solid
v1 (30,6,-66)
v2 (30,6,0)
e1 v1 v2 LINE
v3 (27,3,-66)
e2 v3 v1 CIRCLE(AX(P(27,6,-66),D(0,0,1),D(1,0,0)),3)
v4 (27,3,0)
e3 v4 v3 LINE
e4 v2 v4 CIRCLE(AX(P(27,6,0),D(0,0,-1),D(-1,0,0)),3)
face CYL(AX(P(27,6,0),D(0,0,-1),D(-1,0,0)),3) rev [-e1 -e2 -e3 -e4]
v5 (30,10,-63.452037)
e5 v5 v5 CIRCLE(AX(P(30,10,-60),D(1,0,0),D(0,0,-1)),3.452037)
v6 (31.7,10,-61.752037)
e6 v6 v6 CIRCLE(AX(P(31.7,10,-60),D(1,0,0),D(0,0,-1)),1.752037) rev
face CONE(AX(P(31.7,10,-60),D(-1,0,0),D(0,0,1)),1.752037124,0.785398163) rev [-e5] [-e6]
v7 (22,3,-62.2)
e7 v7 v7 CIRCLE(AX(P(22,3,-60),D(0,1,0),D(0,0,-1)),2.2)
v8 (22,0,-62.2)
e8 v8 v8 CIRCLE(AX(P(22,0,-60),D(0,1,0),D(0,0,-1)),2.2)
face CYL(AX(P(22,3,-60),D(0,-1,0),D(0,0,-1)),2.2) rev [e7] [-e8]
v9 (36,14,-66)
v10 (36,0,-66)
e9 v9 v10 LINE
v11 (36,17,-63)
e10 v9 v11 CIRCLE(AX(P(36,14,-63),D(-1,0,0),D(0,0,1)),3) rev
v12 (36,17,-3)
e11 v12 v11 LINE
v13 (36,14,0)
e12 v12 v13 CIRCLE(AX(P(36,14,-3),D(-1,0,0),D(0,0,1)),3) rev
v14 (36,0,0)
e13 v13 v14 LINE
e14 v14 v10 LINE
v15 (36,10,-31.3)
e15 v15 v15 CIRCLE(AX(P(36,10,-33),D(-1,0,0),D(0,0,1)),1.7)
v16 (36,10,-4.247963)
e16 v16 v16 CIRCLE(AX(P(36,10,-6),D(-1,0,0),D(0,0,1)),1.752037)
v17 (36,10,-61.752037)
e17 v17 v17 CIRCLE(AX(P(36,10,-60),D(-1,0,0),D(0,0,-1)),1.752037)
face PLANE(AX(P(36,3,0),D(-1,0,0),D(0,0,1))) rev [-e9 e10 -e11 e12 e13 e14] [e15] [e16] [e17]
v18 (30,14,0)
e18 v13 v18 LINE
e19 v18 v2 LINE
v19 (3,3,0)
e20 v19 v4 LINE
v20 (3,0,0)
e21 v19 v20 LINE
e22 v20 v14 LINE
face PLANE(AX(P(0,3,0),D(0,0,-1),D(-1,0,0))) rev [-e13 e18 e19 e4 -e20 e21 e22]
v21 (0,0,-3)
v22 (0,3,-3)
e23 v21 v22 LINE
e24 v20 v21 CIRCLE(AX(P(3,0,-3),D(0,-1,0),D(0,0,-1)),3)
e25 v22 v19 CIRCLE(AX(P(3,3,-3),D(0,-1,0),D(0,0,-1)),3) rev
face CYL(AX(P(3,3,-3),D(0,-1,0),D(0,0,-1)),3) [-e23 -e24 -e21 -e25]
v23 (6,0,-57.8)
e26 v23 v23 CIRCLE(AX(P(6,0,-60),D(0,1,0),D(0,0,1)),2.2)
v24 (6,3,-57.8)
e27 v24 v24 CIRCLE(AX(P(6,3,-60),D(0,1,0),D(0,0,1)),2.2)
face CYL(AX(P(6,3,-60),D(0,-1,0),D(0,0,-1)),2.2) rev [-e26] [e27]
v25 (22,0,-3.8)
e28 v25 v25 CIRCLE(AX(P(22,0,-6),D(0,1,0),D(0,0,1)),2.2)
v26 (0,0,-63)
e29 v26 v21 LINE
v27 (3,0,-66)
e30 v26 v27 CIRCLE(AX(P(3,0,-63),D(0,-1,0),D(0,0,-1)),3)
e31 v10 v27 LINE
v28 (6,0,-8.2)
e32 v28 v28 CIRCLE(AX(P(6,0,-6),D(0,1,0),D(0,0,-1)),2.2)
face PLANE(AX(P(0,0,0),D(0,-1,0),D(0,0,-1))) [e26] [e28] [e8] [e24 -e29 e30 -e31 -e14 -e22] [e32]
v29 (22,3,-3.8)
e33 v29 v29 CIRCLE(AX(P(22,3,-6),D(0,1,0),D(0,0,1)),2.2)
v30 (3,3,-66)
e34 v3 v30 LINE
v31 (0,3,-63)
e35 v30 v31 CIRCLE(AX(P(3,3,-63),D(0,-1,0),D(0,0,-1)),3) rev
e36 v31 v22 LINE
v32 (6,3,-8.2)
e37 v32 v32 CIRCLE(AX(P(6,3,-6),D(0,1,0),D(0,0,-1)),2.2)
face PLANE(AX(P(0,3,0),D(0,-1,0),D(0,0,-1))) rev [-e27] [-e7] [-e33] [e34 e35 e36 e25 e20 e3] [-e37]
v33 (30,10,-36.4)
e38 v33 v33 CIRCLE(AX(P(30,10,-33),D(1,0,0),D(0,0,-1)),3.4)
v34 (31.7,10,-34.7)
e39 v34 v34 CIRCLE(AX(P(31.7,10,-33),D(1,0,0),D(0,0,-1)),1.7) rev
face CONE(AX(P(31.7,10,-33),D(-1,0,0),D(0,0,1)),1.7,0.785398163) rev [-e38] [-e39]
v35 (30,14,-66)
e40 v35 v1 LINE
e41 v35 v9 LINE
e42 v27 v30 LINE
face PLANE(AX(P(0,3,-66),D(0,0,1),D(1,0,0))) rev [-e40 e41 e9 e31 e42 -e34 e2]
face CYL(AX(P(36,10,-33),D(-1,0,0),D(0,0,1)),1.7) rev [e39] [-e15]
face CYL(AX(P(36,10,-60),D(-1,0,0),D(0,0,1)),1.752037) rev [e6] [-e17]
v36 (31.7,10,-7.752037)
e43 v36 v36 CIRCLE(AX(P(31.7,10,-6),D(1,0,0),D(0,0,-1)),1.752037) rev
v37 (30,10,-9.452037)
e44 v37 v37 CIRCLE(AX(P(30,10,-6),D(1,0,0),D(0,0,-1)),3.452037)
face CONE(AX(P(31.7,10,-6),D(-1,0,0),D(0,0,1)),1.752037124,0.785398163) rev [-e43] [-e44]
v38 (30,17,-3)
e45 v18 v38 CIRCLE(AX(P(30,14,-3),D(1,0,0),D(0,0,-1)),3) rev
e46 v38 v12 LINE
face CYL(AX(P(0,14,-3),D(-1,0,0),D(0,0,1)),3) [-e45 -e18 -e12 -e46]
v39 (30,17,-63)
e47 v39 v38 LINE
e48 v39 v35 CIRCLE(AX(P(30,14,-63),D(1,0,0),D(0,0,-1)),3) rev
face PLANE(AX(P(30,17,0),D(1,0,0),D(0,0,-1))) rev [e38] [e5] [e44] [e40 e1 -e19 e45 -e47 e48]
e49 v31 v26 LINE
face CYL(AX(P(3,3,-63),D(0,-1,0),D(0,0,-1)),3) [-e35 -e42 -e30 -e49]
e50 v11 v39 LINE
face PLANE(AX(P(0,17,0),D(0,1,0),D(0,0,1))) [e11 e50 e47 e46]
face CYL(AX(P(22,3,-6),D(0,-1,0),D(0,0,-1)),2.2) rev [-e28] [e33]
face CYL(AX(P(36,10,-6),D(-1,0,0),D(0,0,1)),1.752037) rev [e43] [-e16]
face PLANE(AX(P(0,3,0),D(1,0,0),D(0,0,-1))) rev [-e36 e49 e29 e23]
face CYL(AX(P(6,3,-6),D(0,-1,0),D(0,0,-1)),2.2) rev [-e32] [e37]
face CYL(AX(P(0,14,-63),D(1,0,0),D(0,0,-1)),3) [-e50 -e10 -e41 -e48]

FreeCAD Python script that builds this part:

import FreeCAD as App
import Part
import Sketcher
from FreeCAD import Vector


def edges_at(feature, points):
    """Names of the edges that pass closest to the given points."""
    edges = feature.Shape.Edges
    near = lambda p: min(range(len(edges)), key=lambda i: edges[i].distToShape(Part.Vertex(*p))[0])
    return sorted({f"Edge{near(p) + 1}" for p in points})


def add_polygon(sketch, points):
    """Adds a closed chain of lines whose ends are joined by coincident constraints."""
    first, n = sketch.GeometryCount, len(points)
    for a, b in zip(points, points[1:] + points[:1]):
        sketch.addGeometry(Part.LineSegment(App.Vector(*a, 0), App.Vector(*b, 0)), False)
    for i in range(n):
        sketch.addConstraint(Sketcher.Constraint("Coincident", first + i, 2, first + (i + 1) % n, 1))

doc = App.newDocument("Part")
params = doc.addObject("Spreadsheet::Sheet", "Params")
for row, (alias, value) in enumerate([
    ("sketch1_diameter", "4.4 mm"),
    ("sketch1_width", "36 mm"),
    ("sketch1_height", "66 mm"),
    ("pad1_length", "3 mm"),
    ("sketch2_width", "6 mm"),
    ("sketch2_height", "66 mm"),
    ("pad2_length", "14 mm"),
    ("sketch3_diameter", "3.4 mm"),
    ("chamfer_size", "1.7 mm"),
    ("fillet_radius", "3 mm"),
], start=1):
    params.set(f"A{row}", alias)
    params.set(f"B{row}", "=" + value)
    params.setAlias(f"B{row}", alias)

body = doc.addObject("PartDesign::Body", "Body")

# Sketch on XZ plane
sketch1 = doc.addObject("Sketcher::SketchObject", "Sketch")
body.addObject(sketch1)
sketch1.AttachmentSupport = (doc.XZ_Plane, [""])
sketch1.MapMode = "FlatFace"
add_polygon(sketch1, [(0, -66), (0, 0), (36, 0), (36, -66)])  # lines 0-3
sketch1.addGeometry(Part.Circle(Vector(6, -6, 0), Vector(0, 0, 1), 2.2), False)  # 4
sketch1.addGeometry(Part.Circle(Vector(22, -6, 0), Vector(0, 0, 1), 2.2), False)  # 5
sketch1.addGeometry(Part.Circle(Vector(6, -60, 0), Vector(0, 0, 1), 2.2), False)  # 6
sketch1.addGeometry(Part.Circle(Vector(22, -60, 0), Vector(0, 0, 1), 2.2), False)  # 7
sketch1.addConstraint(Sketcher.Constraint("Vertical", 0))
sketch1.addConstraint(Sketcher.Constraint("Horizontal", 1))
sketch1.addConstraint(Sketcher.Constraint("Vertical", 2))
sketch1.addConstraint(Sketcher.Constraint("Horizontal", 3))
sketch1.addConstraint(Sketcher.Constraint("Coincident", 0, 2, -1, 1))
sketch1.addConstraint(Sketcher.Constraint("Equal", 4, 5))
sketch1.addConstraint(Sketcher.Constraint("Equal", 5, 6))
sketch1.addConstraint(Sketcher.Constraint("Equal", 6, 7))
sketch1.addConstraint(Sketcher.Constraint("Horizontal", 4, 3, 5, 3))
sketch1.addConstraint(Sketcher.Constraint("Horizontal", 6, 3, 7, 3))
sketch1.addConstraint(Sketcher.Constraint("Vertical", 4, 3, 6, 3))
sketch1.addConstraint(Sketcher.Constraint("Vertical", 5, 3, 7, 3))
sketch1.addConstraint(Sketcher.Constraint("Diameter", 4, 4.4))
sketch1.addConstraint(Sketcher.Constraint("DistanceX", 1, 1, 1, 2, 36.0))
sketch1.addConstraint(Sketcher.Constraint("DistanceY", 0, 1, 0, 2, 66.0))
sketch1.addConstraint(Sketcher.Constraint("DistanceX", -1, 1, 4, 3, 6.0))
sketch1.addConstraint(Sketcher.Constraint("DistanceY", 4, 3, -1, 1, 6.0))
sketch1.addConstraint(Sketcher.Constraint("DistanceX", -1, 1, 5, 3, 22.0))
sketch1.addConstraint(Sketcher.Constraint("DistanceY", 6, 3, -1, 1, 60.0))
sketch1.setExpression("Constraints[16]", "Params.sketch1_diameter")
sketch1.setExpression("Constraints[17]", "Params.sketch1_width")
sketch1.setExpression("Constraints[18]", "Params.sketch1_height")
pad1 = doc.addObject("PartDesign::Pad", "Pad")
body.addObject(pad1)
pad1.Profile = sketch1
pad1.setExpression("Length", "Params.pad1_length")
pad1.Reversed = True

# Sketch on XZ plane
sketch2 = doc.addObject("Sketcher::SketchObject", "Sketch001")
body.addObject(sketch2)
sketch2.AttachmentSupport = (doc.XZ_Plane, [""])
sketch2.MapMode = "FlatFace"
sketch2.AttachmentOffset = App.Placement(Vector(0, 0, -3), App.Rotation())
add_polygon(sketch2, [(30, -66), (30, 0), (36, 0), (36, -66)])  # lines 0-3
sketch2.addConstraint(Sketcher.Constraint("Vertical", 0))
sketch2.addConstraint(Sketcher.Constraint("Horizontal", 1))
sketch2.addConstraint(Sketcher.Constraint("Vertical", 2))
sketch2.addConstraint(Sketcher.Constraint("Horizontal", 3))
sketch2.addConstraint(Sketcher.Constraint("PointOnObject", 0, 2, -1))
sketch2.addConstraint(Sketcher.Constraint("DistanceX", 1, 1, 1, 2, 6.0))
sketch2.addConstraint(Sketcher.Constraint("DistanceY", 0, 1, 0, 2, 66.0))
sketch2.addConstraint(Sketcher.Constraint("DistanceX", -1, 1, 0, 2, 30.0))
sketch2.setExpression("Constraints[9]", "Params.sketch2_width")
sketch2.setExpression("Constraints[10]", "Params.sketch2_height")
pad2 = doc.addObject("PartDesign::Pad", "Pad001")
body.addObject(pad2)
pad2.Profile = sketch2
pad2.setExpression("Length", "Params.pad2_length")
pad2.Reversed = True

# Sketch on YZ plane
sketch3 = doc.addObject("Sketcher::SketchObject", "Sketch002")
body.addObject(sketch3)
sketch3.AttachmentSupport = (doc.YZ_Plane, [""])
sketch3.MapMode = "FlatFace"
sketch3.AttachmentOffset = App.Placement(Vector(0, 0, 30), App.Rotation())
sketch3.addGeometry(Part.Circle(Vector(10, -33, 0), Vector(0, 0, 1), 1.7), False)
sketch3.addGeometry(Part.Circle(Vector(10, -6, 0), Vector(0, 0, 1), 1.8), False)
sketch3.addGeometry(Part.Circle(Vector(10, -60, 0), Vector(0, 0, 1), 1.8), False)
sketch3.addConstraint(Sketcher.Constraint("Equal", 1, 2))
sketch3.addConstraint(Sketcher.Constraint("Vertical", 0, 3, 1, 3))
sketch3.addConstraint(Sketcher.Constraint("Vertical", 1, 3, 2, 3))
sketch3.addConstraint(Sketcher.Constraint("Diameter", 0, 3.4))
sketch3.addConstraint(Sketcher.Constraint("DistanceX", -1, 1, 0, 3, 10.0))
sketch3.addConstraint(Sketcher.Constraint("DistanceY", 0, 3, -1, 1, 33.0))
sketch3.addConstraint(Sketcher.Constraint("DistanceY", 1, 3, -1, 1, 6.0))
sketch3.addConstraint(Sketcher.Constraint("DistanceY", 2, 3, -1, 1, 60.0))
sketch3.addConstraint(Sketcher.Constraint("Diameter", 1, 3.504074))
sketch3.setExpression("Constraints[3]", "Params.sketch3_diameter")
pocket1 = doc.addObject("PartDesign::Pocket", "Pocket")
body.addObject(pocket1)
pocket1.Profile = sketch3
pocket1.Type = "ThroughAll"
pocket1.Reversed = True
doc.recompute()

chamfer = doc.addObject("PartDesign::Chamfer", "Chamfer")
body.addObject(chamfer)
chamfer.Base = (pocket1, edges_at(pocket1, [(30, 10, -58.248), (30, 10, -7.752), (30, 10, -34.7)]))
chamfer.setExpression("Size", "Params.chamfer_size")
doc.recompute()

fillet = doc.addObject("PartDesign::Fillet", "Fillet")
body.addObject(fillet)
fillet.Base = (chamfer, edges_at(chamfer, [
    (30, 3, -33),
    (33, 17, -66),
    (33, 17, 0),
    (0, 1.5, -66),
    (0, 1.5, 0),
]))
fillet.setExpression("Radius", "Params.fillet_radius")

doc.recompute()
